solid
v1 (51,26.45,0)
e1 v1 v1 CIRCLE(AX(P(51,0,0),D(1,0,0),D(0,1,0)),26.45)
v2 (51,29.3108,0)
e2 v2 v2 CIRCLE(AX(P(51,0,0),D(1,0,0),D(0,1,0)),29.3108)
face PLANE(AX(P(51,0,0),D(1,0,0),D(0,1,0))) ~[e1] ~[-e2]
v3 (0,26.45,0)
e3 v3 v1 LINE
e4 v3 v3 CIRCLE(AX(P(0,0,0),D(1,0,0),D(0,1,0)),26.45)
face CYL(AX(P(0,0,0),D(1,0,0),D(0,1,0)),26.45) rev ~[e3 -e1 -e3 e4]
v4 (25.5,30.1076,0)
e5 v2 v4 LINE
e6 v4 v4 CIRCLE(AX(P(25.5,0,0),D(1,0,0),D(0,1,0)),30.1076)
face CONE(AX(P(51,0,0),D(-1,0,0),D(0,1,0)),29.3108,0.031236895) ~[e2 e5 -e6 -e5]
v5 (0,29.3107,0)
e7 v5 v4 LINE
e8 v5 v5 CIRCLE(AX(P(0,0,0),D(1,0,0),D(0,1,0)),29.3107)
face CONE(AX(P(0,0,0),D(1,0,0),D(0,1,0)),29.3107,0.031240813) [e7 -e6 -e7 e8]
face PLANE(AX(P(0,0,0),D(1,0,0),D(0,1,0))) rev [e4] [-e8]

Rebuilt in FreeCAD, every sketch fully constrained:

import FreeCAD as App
import Part
import Sketcher
Q = App.Units.Quantity

doc = App.newDocument("Part")
body = doc.addObject("PartDesign::Body", "Body")

# Sketch on XY plane
sketch1 = doc.addObject("Sketcher::SketchObject", "Sketch")
body.addObject(sketch1)
sketch1.AttachmentSupport = (doc.XY_Plane, [""])
sketch1.MapMode = "FlatFace"
sketch1.addGeometry(Part.LineSegment(App.Vector(0, 26.4, 0), App.Vector(51, 26.4, 0)), False)
sketch1.addGeometry(Part.LineSegment(App.Vector(51, 26.4, 0), App.Vector(51, 29.3, 0)), False)
sketch1.addGeometry(Part.LineSegment(App.Vector(51, 29.3, 0), App.Vector(25.5, 30.1, 0)), False)
sketch1.addGeometry(Part.LineSegment(App.Vector(25.5, 30.1, 0), App.Vector(0, 29.3, 0)), False)
sketch1.addGeometry(Part.LineSegment(App.Vector(0, 29.3, 0), App.Vector(0, 26.4, 0)), False)
sketch1.addConstraint(Sketcher.Constraint("Coincident", 0, 2, 1, 1))
sketch1.addConstraint(Sketcher.Constraint("Coincident", 1, 2, 2, 1))
sketch1.addConstraint(Sketcher.Constraint("Coincident", 2, 2, 3, 1))
sketch1.addConstraint(Sketcher.Constraint("Coincident", 3, 2, 4, 1))
sketch1.addConstraint(Sketcher.Constraint("Coincident", 4, 2, 0, 1))
sketch1.addConstraint(Sketcher.Constraint("Horizontal", 0))
sketch1.addConstraint(Sketcher.Constraint("Vertical", 1))
sketch1.addConstraint(Sketcher.Constraint("Vertical", 4))
sketch1.addConstraint(Sketcher.Constraint("PointOnObject", 3, 2, -2))
sketch1.addConstraint(Sketcher.Constraint("Horizontal", 1, 2, 3, 2))
sketch1.addConstraint(Sketcher.Constraint("Equal", 2, 3))
sketch1.addConstraint(Sketcher.Constraint("DistanceX", 0, 1, 0, 2, Q("51 mm")))
sketch1.addConstraint(Sketcher.Constraint("Angle", 2, Q("178.2103 deg")))
sketch1.addConstraint(Sketcher.Constraint("DistanceY", -1, 1, 0, 2, Q("26.45 mm")))
sketch1.addConstraint(Sketcher.Constraint("DistanceY", 1, 1, 1, 2, Q("2.8608 mm")))
revolution = doc.addObject("PartDesign::Revolution", "Revolution")
body.addObject(revolution)
revolution.Profile = sketch1
revolution.ReferenceAxis = (sketch1, ["H_Axis"])
revolution.Angle = 360

doc.recompute()
